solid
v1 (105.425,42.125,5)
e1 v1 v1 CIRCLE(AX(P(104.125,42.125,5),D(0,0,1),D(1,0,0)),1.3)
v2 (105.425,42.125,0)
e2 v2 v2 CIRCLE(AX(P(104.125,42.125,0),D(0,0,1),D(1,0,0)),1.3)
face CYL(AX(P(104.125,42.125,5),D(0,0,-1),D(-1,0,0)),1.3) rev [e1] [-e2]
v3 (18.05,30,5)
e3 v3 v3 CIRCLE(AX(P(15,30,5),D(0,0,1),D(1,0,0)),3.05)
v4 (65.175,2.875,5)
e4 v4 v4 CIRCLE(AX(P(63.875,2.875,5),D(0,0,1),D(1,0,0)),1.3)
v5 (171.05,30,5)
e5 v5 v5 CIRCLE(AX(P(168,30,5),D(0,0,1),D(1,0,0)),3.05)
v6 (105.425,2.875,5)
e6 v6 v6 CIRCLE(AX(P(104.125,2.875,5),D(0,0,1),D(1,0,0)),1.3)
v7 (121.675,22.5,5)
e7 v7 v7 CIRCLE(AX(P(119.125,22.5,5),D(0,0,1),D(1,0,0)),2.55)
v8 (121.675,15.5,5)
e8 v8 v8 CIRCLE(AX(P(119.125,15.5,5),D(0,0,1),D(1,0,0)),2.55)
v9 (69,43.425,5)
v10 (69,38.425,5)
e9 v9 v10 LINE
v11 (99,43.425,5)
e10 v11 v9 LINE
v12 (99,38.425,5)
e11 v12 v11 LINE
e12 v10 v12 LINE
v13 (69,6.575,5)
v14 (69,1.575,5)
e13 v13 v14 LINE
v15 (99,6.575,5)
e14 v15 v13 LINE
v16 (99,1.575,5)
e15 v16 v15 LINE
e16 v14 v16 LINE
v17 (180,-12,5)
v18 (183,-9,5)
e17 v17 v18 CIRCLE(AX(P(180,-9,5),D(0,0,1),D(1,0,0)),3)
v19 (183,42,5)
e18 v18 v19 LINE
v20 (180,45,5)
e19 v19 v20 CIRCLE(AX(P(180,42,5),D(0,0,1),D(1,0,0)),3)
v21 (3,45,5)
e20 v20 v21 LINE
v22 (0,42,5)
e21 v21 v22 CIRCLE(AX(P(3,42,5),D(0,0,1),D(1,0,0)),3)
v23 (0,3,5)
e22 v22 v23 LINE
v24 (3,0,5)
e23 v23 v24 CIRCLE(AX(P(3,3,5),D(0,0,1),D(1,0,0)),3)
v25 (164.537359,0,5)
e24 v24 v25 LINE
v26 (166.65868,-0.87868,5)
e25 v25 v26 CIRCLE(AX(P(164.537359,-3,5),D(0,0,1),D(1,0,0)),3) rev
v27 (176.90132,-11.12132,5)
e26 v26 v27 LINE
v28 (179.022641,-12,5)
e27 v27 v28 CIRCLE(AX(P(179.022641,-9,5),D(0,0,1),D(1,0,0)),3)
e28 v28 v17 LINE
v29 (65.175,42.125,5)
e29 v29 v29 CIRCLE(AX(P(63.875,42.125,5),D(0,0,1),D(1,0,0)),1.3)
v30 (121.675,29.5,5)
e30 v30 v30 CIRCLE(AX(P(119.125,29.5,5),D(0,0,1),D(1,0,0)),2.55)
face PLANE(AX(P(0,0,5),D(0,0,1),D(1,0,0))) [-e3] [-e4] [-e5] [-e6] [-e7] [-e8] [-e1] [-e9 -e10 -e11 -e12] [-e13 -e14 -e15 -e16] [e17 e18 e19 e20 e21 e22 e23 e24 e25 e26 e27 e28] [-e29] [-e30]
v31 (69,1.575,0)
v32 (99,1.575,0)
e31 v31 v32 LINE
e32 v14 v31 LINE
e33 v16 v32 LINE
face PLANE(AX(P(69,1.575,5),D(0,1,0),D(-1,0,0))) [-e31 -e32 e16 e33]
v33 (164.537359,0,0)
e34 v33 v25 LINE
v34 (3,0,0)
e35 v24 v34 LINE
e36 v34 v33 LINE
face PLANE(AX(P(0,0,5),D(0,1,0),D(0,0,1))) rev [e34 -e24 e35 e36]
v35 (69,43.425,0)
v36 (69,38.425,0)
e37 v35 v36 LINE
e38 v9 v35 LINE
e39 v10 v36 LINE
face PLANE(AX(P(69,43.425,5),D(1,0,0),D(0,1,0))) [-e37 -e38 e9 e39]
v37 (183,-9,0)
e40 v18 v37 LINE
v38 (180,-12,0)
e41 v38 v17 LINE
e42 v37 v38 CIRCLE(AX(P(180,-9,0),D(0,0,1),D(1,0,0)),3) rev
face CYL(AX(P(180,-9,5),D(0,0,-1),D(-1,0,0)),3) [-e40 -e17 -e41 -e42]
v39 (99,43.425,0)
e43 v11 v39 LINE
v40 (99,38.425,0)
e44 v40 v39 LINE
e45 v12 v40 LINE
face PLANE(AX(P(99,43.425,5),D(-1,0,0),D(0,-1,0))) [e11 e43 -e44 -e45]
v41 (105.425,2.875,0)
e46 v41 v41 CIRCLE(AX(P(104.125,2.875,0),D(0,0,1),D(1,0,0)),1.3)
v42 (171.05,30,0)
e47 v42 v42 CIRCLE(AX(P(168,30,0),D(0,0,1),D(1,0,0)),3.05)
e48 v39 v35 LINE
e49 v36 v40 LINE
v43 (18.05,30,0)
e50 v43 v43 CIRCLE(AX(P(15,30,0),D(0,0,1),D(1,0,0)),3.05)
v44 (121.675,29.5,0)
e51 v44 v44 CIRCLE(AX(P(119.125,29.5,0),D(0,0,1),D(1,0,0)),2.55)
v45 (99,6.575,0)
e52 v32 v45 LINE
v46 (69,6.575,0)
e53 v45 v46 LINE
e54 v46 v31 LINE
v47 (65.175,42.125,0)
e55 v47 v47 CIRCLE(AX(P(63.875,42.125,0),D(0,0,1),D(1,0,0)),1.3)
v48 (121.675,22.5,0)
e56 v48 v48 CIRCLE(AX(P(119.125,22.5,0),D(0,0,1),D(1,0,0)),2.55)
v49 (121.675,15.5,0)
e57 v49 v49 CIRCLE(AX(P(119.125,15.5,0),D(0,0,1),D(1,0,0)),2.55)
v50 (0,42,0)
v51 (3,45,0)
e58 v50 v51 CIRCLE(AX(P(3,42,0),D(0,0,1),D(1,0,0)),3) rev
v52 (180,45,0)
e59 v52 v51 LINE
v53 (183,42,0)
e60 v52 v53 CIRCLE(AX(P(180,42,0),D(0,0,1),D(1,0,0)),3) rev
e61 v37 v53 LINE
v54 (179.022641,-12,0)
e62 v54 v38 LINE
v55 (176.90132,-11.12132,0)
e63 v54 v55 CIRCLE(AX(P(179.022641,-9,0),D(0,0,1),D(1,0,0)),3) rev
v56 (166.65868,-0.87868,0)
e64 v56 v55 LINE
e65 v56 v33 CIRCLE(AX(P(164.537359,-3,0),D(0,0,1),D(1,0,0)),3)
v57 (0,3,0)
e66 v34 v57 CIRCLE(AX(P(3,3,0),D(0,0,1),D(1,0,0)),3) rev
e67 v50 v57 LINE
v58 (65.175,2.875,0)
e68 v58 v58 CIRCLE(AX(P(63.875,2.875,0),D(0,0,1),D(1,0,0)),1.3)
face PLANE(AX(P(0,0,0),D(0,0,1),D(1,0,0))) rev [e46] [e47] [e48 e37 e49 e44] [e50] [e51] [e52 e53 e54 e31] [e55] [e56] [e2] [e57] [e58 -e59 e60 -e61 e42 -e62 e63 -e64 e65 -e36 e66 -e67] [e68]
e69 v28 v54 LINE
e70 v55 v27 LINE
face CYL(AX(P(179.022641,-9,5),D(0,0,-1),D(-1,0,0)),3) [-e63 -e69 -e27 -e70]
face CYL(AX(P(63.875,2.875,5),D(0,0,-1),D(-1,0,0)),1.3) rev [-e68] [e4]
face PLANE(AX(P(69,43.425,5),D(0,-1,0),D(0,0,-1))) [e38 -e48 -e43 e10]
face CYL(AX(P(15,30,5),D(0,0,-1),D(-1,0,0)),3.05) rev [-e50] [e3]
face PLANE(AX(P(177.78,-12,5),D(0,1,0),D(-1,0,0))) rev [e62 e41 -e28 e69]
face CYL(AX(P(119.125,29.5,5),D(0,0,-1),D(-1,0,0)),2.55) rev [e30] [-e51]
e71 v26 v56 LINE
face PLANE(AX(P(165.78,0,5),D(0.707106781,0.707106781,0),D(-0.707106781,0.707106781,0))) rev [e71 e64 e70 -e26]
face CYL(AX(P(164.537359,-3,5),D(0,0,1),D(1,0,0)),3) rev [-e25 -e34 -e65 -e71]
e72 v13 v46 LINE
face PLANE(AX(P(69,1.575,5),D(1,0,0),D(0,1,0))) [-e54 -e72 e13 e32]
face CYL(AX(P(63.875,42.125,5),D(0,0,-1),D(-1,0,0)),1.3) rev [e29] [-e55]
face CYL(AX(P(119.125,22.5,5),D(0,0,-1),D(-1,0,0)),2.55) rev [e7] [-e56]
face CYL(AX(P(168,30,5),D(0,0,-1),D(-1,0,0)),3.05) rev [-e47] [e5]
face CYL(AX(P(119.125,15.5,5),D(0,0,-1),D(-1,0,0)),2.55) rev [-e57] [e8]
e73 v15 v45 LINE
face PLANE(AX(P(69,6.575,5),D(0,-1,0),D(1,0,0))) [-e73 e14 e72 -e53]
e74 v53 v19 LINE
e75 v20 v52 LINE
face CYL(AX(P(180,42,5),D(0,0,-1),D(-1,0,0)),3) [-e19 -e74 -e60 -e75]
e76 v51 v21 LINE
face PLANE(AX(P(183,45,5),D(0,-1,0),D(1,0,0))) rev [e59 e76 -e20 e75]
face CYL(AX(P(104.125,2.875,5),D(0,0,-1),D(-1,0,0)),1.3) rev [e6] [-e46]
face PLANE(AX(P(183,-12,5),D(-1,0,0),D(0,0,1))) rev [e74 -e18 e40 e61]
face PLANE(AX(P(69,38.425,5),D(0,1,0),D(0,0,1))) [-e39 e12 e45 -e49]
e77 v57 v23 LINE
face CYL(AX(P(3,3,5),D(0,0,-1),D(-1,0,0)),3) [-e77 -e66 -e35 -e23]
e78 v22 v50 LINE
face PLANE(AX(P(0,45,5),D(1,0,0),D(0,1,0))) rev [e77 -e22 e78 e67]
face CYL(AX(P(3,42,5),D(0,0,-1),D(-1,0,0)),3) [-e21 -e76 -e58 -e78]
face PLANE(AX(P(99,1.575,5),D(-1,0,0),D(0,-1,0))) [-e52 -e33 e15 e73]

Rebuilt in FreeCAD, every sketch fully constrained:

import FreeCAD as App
import Part
import Sketcher
Q = App.Units.Quantity


def edges_at(feature, points):
    """Names of the edges that pass closest to the given points."""
    edges = feature.Shape.Edges
    near = lambda p: min(range(len(edges)), key=lambda i: edges[i].distToShape(Part.Vertex(*p))[0])
    return sorted({f"Edge{near(p) + 1}" for p in points})


def add_polygon(sketch, points):
    """Adds a closed chain of lines whose ends are joined by coincident constraints."""
    first, n = sketch.GeometryCount, len(points)
    for a, b in zip(points, points[1:] + points[:1]):
        sketch.addGeometry(Part.LineSegment(App.Vector(*a, 0), App.Vector(*b, 0)), False)
    for i in range(n):
        sketch.addConstraint(Sketcher.Constraint("Coincident", first + i, 2, first + (i + 1) % n, 1))

doc = App.newDocument("Part")
params = doc.addObject("Spreadsheet::Sheet", "Params")
for row, (alias, value) in enumerate([
    ("sketch1_diameter", "2.6 mm"),
    ("sketch1_diameter2", "5.1 mm"),
    ("sketch1_diameter3", "6.1 mm"),
    ("sketch1_width", "183 mm"),
    ("sketch1_width2", "30 mm"),
    ("pad1_length", "5 mm"),
    ("fillet_radius", "3 mm"),
], start=1):
    params.set(f"A{row}", alias)
    params.set(f"B{row}", "=" + value)
    params.setAlias(f"B{row}", alias)

body = doc.addObject("PartDesign::Body", "Body")

sketch1 = body.newObject("Sketcher::SketchObject", "Sketch")
sketch1.AttachmentSupport = (doc.getObject("XY_Plane"), [""])
sketch1.MapMode = "FlatFace"
add_polygon(sketch1, [(183, -12), (183, 45), (0, 45), (0, 0), (165.8, 0), (177.8, -12)])
sketch1.addGeometry(Part.Circle(App.Vector(63.9, 2.9, 0), App.Vector(0, 0, 1), 1.3), False)
add_polygon(sketch1, [(99, 1.6), (69, 1.6), (69, 6.6), (99, 6.6)])
sketch1.addGeometry(Part.Circle(App.Vector(104.1, 2.9, 0), App.Vector(0, 0, 1), 1.3), False)
sketch1.addGeometry(Part.Circle(App.Vector(119.1, 15.5, 0), App.Vector(0, 0, 1), 2.5), False)
sketch1.addGeometry(Part.Circle(App.Vector(15, 30, 0), App.Vector(0, 0, 1), 3), False)
sketch1.addGeometry(Part.Circle(App.Vector(63.9, 42.1, 0), App.Vector(0, 0, 1), 1.3), False)
add_polygon(sketch1, [(99, 38.4), (69, 38.4), (69, 43.4), (99, 43.4)])
sketch1.addGeometry(Part.Circle(App.Vector(119.1, 22.5, 0), App.Vector(0, 0, 1), 2.5), False)
sketch1.addGeometry(Part.Circle(App.Vector(119.1, 29.5, 0), App.Vector(0, 0, 1), 2.5), False)
sketch1.addGeometry(Part.Circle(App.Vector(168, 30, 0), App.Vector(0, 0, 1), 3), False)
sketch1.addGeometry(Part.Circle(App.Vector(104.1, 42.1, 0), App.Vector(0, 0, 1), 1.3), False)
sketch1.addConstraint(Sketcher.Constraint("Vertical", 0))
sketch1.addConstraint(Sketcher.Constraint("Horizontal", 1))
sketch1.addConstraint(Sketcher.Constraint("Vertical", 2))
sketch1.addConstraint(Sketcher.Constraint("Horizontal", 3))
sketch1.addConstraint(Sketcher.Constraint("Horizontal", 5))
sketch1.addConstraint(Sketcher.Constraint("Horizontal", 7))
sketch1.addConstraint(Sketcher.Constraint("Vertical", 8))
sketch1.addConstraint(Sketcher.Constraint("Horizontal", 9))
sketch1.addConstraint(Sketcher.Constraint("Vertical", 10))
sketch1.addConstraint(Sketcher.Constraint("Horizontal", 15))
sketch1.addConstraint(Sketcher.Constraint("Vertical", 16))
sketch1.addConstraint(Sketcher.Constraint("Horizontal", 17))
sketch1.addConstraint(Sketcher.Constraint("Vertical", 18))
sketch1.addConstraint(Sketcher.Constraint("Coincident", 2, 2, -1, 1))
sketch1.addConstraint(Sketcher.Constraint("Equal", 6, 11))
sketch1.addConstraint(Sketcher.Constraint("Equal", 11, 14))
sketch1.addConstraint(Sketcher.Constraint("Equal", 12, 19))
sketch1.addConstraint(Sketcher.Constraint("Equal", 19, 20))
sketch1.addConstraint(Sketcher.Constraint("Equal", 13, 21))
sketch1.addConstraint(Sketcher.Constraint("Equal", 14, 22))
sketch1.addConstraint(Sketcher.Constraint("Horizontal", 6, 3, 11, 3))
sketch1.addConstraint(Sketcher.Constraint("Horizontal", 13, 3, 21, 3))
sketch1.addConstraint(Sketcher.Constraint("Horizontal", 14, 3, 22, 3))
sketch1.addConstraint(Sketcher.Constraint("Vertical", 6, 3, 14, 3))
sketch1.addConstraint(Sketcher.Constraint("Vertical", 12, 3, 19, 3))
sketch1.addConstraint(Sketcher.Constraint("Vertical", 19, 3, 20, 3))
sketch1.addConstraint(Sketcher.Constraint("Vertical", 11, 3, 22, 3))
sketch1.addConstraint(Sketcher.Constraint("Vertical", 8, 2, 15, 2))
sketch1.addConstraint(Sketcher.Constraint("Vertical", 10, 2, 17, 2))
sketch1.addConstraint(Sketcher.Constraint("Equal", 10, 16))
sketch1.addConstraint(Sketcher.Constraint("Diameter", 6, 2.6))
sketch1.addConstraint(Sketcher.Constraint("Diameter", 12, 5.1))
sketch1.addConstraint(Sketcher.Constraint("Diameter", 13, 6.1))
sketch1.addConstraint(Sketcher.Constraint("DistanceX", 1, 2, 1, 1, 183.0))
sketch1.addConstraint(Sketcher.Constraint("DistanceX", 7, 2, 7, 1, 30.0))
sketch1.addConstraint(Sketcher.Constraint("DistanceY", 0, 1, 0, 2, 57.0))
sketch1.addConstraint(Sketcher.Constraint("DistanceY", 2, 2, 2, 1, 45.0))
sketch1.addConstraint(Sketcher.Constraint("DistanceY", 8, 1, 8, 2, 5.0))
sketch1.addConstraint(Sketcher.Constraint("Angle", 4, Q("-45 deg")))
sketch1.addConstraint(Sketcher.Constraint("DistanceX", -1, 1, 13, 3, 15.0))
sketch1.addConstraint(Sketcher.Constraint("DistanceY", -1, 1, 13, 3, 30.0))
sketch1.addConstraint(Sketcher.Constraint("DistanceX", -1, 1, 21, 3, 168.0))
sketch1.addConstraint(Sketcher.Constraint("DistanceX", -1, 1, 7, 2, 69.0))
sketch1.addConstraint(Sketcher.Constraint("DistanceX", 11, 3, 12, 3, 15.0))
sketch1.addConstraint(Sketcher.Constraint("DistanceY", 12, 3, 19, 3, 7.0))
sketch1.addConstraint(Sketcher.Constraint("DistanceY", 19, 3, 20, 3, 7.0))
sketch1.addConstraint(Sketcher.Constraint("DistanceX", 3, 1, 3, 2, 165.78))
sketch1.addConstraint(Sketcher.Constraint("DistanceY", -1, 1, 12, 3, 15.5))
sketch1.addConstraint(Sketcher.Constraint("DistanceY", 7, 2, 6, 3, 1.3))
sketch1.addConstraint(Sketcher.Constraint("DistanceY", 15, 2, 14, 3, 3.7))
sketch1.addConstraint(Sketcher.Constraint("DistanceX", 6, 3, 11, 3, 40.25))
sketch1.addConstraint(Sketcher.Constraint("DistanceY", 6, 3, 14, 3, 39.25))
sketch1.addConstraint(Sketcher.Constraint("DistanceX", -1, 1, 6, 3, 63.875))
sketch1.addConstraint(Sketcher.Constraint("DistanceY", -1, 1, 6, 3, 2.875))
sketch1.setExpression("Constraints[44]", "Params.sketch1_diameter")
sketch1.setExpression("Constraints[45]", "Params.sketch1_diameter2")
sketch1.setExpression("Constraints[46]", "Params.sketch1_diameter3")
sketch1.setExpression("Constraints[47]", "Params.sketch1_width")
sketch1.setExpression("Constraints[48]", "Params.sketch1_width2")
pad1 = body.newObject("PartDesign::Pad", "Pad")
pad1.Profile = sketch1
pad1.setExpression("Length", "Params.pad1_length")
doc.recompute()

fillet = body.newObject("PartDesign::Fillet", "Fillet")
fillet.Base = (pad1, edges_at(pad1, [
    (0, 0, 2.5),
    (0, 45, 2.5),
    (183, 45, 2.5),
    (183, -12, 2.5),
    (177.78, -12, 2.5),
    (165.78, 0, 2.5),
]))
fillet.setExpression("Radius", "Params.fillet_radius")

doc.recompute()
